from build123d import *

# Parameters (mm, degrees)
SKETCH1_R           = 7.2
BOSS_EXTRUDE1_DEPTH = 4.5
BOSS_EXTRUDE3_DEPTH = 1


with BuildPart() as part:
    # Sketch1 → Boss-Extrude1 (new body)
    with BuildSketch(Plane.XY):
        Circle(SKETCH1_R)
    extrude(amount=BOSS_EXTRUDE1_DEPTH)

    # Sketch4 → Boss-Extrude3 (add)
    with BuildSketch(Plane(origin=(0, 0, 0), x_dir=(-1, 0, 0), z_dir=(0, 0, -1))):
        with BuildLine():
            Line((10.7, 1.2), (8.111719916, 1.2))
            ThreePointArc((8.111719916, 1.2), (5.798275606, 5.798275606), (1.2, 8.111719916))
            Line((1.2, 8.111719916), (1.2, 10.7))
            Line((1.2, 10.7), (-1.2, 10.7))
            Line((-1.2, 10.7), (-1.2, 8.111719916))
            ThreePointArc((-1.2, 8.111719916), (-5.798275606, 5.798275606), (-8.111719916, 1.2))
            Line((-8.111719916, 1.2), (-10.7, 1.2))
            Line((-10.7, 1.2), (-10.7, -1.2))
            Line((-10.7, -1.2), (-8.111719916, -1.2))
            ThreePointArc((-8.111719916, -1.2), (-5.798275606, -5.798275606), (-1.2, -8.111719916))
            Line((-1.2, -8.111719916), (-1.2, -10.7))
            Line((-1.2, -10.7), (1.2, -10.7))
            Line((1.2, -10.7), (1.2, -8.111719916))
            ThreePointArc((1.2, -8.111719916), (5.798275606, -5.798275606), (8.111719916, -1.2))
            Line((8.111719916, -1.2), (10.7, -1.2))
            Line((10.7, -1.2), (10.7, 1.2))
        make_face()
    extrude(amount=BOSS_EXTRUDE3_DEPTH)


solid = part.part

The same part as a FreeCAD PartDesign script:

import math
import FreeCAD as App
import Part
import Sketcher
from FreeCAD import Vector

doc = App.newDocument("Part")
body = doc.addObject("PartDesign::Body", "Body")

# Sketch on XY plane
sketch1 = doc.addObject("Sketcher::SketchObject", "Sketch")
body.addObject(sketch1)
sketch1.AttachmentSupport = (doc.XY_Plane, [""])
sketch1.MapMode = "FlatFace"
sketch1.addGeometry(Part.Circle(Vector(0, 0, 0), Vector(0, 0, 1), 7), False)
sketch1.addConstraint(Sketcher.Constraint("Coincident", 0, 3, -1, 1))
sketch1.addConstraint(Sketcher.Constraint("Diameter", 0, 14.4))
pad1 = doc.addObject("PartDesign::Pad", "Pad")
body.addObject(pad1)
pad1.Profile = sketch1
pad1.Length = 4.5

# Sketch on XY plane
sketch2 = doc.addObject("Sketcher::SketchObject", "Sketch001")
body.addObject(sketch2)
sketch2.AttachmentSupport = (doc.XY_Plane, [""])
sketch2.MapMode = "FlatFace"
sketch2.addGeometry(Part.LineSegment(Vector(-10.7, 1.2, 0), Vector(-8.1, 1.2, 0)), False)
sketch2.addGeometry(Part.ArcOfCircle(Part.Circle(Vector(0, 0, 0), Vector(0, 0, 1), 8.2), math.radians(98), math.radians(172)), False)
sketch2.addGeometry(Part.LineSegment(Vector(-1.2, 8.1, 0), Vector(-1.2, 10.7, 0)), False)
sketch2.addGeometry(Part.LineSegment(Vector(-1.2, 10.7, 0), Vector(1.2, 10.7, 0)), False)
sketch2.addGeometry(Part.LineSegment(Vector(1.2, 10.7, 0), Vector(1.2, 8.1, 0)), False)
sketch2.addGeometry(Part.ArcOfCircle(Part.Circle(Vector(0, 0, 0), Vector(0, 0, 1), 8.2), math.radians(8), math.radians(82)), False)
sketch2.addGeometry(Part.LineSegment(Vector(8.1, 1.2, 0), Vector(10.7, 1.2, 0)), False)
sketch2.addGeometry(Part.LineSegment(Vector(10.7, 1.2, 0), Vector(10.7, -1.2, 0)), False)
sketch2.addGeometry(Part.LineSegment(Vector(10.7, -1.2, 0), Vector(8.1, -1.2, 0)), False)
sketch2.addGeometry(Part.ArcOfCircle(Part.Circle(Vector(0, 0, 0), Vector(0, 0, 1), 8.2), math.radians(-82), math.radians(-8)), False)
sketch2.addGeometry(Part.LineSegment(Vector(1.2, -8.1, 0), Vector(1.2, -10.7, 0)), False)
sketch2.addGeometry(Part.LineSegment(Vector(1.2, -10.7, 0), Vector(-1.2, -10.7, 0)), False)
sketch2.addGeometry(Part.LineSegment(Vector(-1.2, -10.7, 0), Vector(-1.2, -8.1, 0)), False)
sketch2.addGeometry(Part.ArcOfCircle(Part.Circle(Vector(0, 0, 0), Vector(0, 0, 1), 8.2), math.radians(-172), math.radians(-98)), False)
sketch2.addGeometry(Part.LineSegment(Vector(-8.1, -1.2, 0), Vector(-10.7, -1.2, 0)), False)
sketch2.addGeometry(Part.LineSegment(Vector(-10.7, -1.2, 0), Vector(-10.7, 1.2, 0)), False)
sketch2.addConstraint(Sketcher.Constraint("Coincident", 0, 2, 1, 2))
sketch2.addConstraint(Sketcher.Constraint("Coincident", 1, 1, 2, 1))
sketch2.addConstraint(Sketcher.Constraint("Coincident", 2, 2, 3, 1))
sketch2.addConstraint(Sketcher.Constraint("Coincident", 3, 2, 4, 1))
sketch2.addConstraint(Sketcher.Constraint("Coincident", 4, 2, 5, 2))
sketch2.addConstraint(Sketcher.Constraint("Coincident", 5, 1, 6, 1))
sketch2.addConstraint(Sketcher.Constraint("Coincident", 6, 2, 7, 1))
sketch2.addConstraint(Sketcher.Constraint("Coincident", 7, 2, 8, 1))
sketch2.addConstraint(Sketcher.Constraint("Coincident", 8, 2, 9, 2))
sketch2.addConstraint(Sketcher.Constraint("Coincident", 9, 1, 10, 1))
sketch2.addConstraint(Sketcher.Constraint("Coincident", 10, 2, 11, 1))
sketch2.addConstraint(Sketcher.Constraint("Coincident", 11, 2, 12, 1))
sketch2.addConstraint(Sketcher.Constraint("Coincident", 12, 2, 13, 2))
sketch2.addConstraint(Sketcher.Constraint("Coincident", 13, 1, 14, 1))
sketch2.addConstraint(Sketcher.Constraint("Coincident", 14, 2, 15, 1))
sketch2.addConstraint(Sketcher.Constraint("Coincident", 15, 2, 0, 1))
sketch2.addConstraint(Sketcher.Constraint("Horizontal", 0))
sketch2.addConstraint(Sketcher.Constraint("Vertical", 2))
sketch2.addConstraint(Sketcher.Constraint("Horizontal", 3))
sketch2.addConstraint(Sketcher.Constraint("Vertical", 4))
sketch2.addConstraint(Sketcher.Constraint("Horizontal", 6))
sketch2.addConstraint(Sketcher.Constraint("Vertical", 7))
sketch2.addConstraint(Sketcher.Constraint("Horizontal", 8))
sketch2.addConstraint(Sketcher.Constraint("Vertical", 10))
sketch2.addConstraint(Sketcher.Constraint("Horizontal", 11))
sketch2.addConstraint(Sketcher.Constraint("Vertical", 12))
sketch2.addConstraint(Sketcher.Constraint("Horizontal", 14))
sketch2.addConstraint(Sketcher.Constraint("Vertical", 15))
sketch2.addConstraint(Sketcher.Constraint("Coincident", 1, 3, -1, 1))
sketch2.addConstraint(Sketcher.Constraint("Coincident", 5, 3, -1, 1))
sketch2.addConstraint(Sketcher.Constraint("Coincident", 9, 3, -1, 1))
sketch2.addConstraint(Sketcher.Constraint("Coincident", 13, 3, -1, 1))
sketch2.addConstraint(Sketcher.Constraint("Equal", 1, 5))
sketch2.addConstraint(Sketcher.Constraint("Equal", 5, 9))
sketch2.addConstraint(Sketcher.Constraint("Equal", 9, 13))
sketch2.addConstraint(Sketcher.Constraint("Symmetric", 2, 2, 10, 2, -1, 1))
sketch2.addConstraint(Sketcher.Constraint("Symmetric", 6, 2, 14, 2, -1, 1))
sketch2.addConstraint(Sketcher.Constraint("Horizontal", 1, 1, 4, 2))
sketch2.addConstraint(Sketcher.Constraint("Horizontal", 0, 2, 5, 1))
sketch2.addConstraint(Sketcher.Constraint("Horizontal", 9, 1, 12, 2))
sketch2.addConstraint(Sketcher.Constraint("Horizontal", 8, 2, 13, 1))
sketch2.addConstraint(Sketcher.Constraint("Equal", 14, 2))
sketch2.addConstraint(Sketcher.Constraint("Equal", 11, 7))
sketch2.addConstraint(Sketcher.Constraint("Radius", 1, 8.2))
sketch2.addConstraint(Sketcher.Constraint("DistanceX", 3, 1, 3, 2, 2.4))
sketch2.addConstraint(Sketcher.Constraint("DistanceY", -1, 1, 2, 2, 10.7))
pad2 = doc.addObject("PartDesign::Pad", "Pad001")
body.addObject(pad2)
pad2.Profile = sketch2
pad2.Length = 1
pad2.Reversed = True

doc.recompute()
